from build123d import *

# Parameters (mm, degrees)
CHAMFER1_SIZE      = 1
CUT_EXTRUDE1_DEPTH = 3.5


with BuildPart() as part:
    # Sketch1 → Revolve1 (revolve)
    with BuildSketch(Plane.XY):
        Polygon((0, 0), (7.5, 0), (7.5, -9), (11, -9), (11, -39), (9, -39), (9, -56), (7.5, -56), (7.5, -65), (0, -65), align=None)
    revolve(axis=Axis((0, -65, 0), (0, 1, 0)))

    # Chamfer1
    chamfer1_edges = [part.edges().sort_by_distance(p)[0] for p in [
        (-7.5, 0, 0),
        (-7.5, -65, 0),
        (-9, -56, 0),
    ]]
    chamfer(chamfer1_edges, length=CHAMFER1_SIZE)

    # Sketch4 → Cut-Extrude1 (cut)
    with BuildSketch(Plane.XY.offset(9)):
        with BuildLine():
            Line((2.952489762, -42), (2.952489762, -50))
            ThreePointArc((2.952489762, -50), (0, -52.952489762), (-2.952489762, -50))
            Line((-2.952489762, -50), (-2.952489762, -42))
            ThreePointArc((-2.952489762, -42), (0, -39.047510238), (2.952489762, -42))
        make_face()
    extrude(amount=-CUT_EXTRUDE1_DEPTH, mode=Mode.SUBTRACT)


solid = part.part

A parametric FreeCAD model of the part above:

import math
import FreeCAD as App
import Part
import Sketcher

V = App.Vector
Q = App.Units.Quantity


def edges_at(feature, points):
    """Names of the edges that pass closest to the given points."""
    edges = feature.Shape.Edges
    near = lambda p: min(range(len(edges)), key=lambda i: edges[i].distToShape(Part.Vertex(*p))[0])
    return sorted({f"Edge{near(p) + 1}" for p in points})

doc = App.newDocument("Part")
params = doc.addObject("Spreadsheet::Sheet", "Params")
for row, (alias, value) in enumerate([
    ("sketch1_width", "2 mm"),
    ("sketch1_height", "65 mm"),
    ("sketch1_height2", "9 mm"),
    ("sketch1_height3", "17 mm"),
    ("sketch1_width2", "7.5 mm"),
    ("revolution_angle", "360 deg"),
    ("chamfer_size", "1 mm"),
    ("sketch2_height", "8 mm"),
    ("pocket1_length", "3.5 mm"),
], start=1):
    params.set(f"A{row}", alias)
    params.set(f"B{row}", "=" + value)
    params.setAlias(f"B{row}", alias)

body = doc.addObject("PartDesign::Body", "Body")

sketch1 = doc.addObject("Sketcher::SketchObject", "Sketch")
body.addObject(sketch1)
sketch1.AttachmentSupport = (doc.XY_Plane, [""])
sketch1.MapMode = "FlatFace"
sketch1.addGeometry([
    Part.LineSegment(V(7.5, 0, 0), V(0, 0, 0)),
    Part.LineSegment(V(0, 0, 0), V(0, -65, 0)),
    Part.LineSegment(V(0, -65, 0), V(7.5, -65, 0)),
    Part.LineSegment(V(7.5, -65, 0), V(7.5, -56, 0)),
    Part.LineSegment(V(7.5, -56, 0), V(9, -56, 0)),
    Part.LineSegment(V(9, -56, 0), V(9, -39, 0)),
    Part.LineSegment(V(9, -39, 0), V(11, -39, 0)),
    Part.LineSegment(V(11, -39, 0), V(11, -9, 0)),
    Part.LineSegment(V(11, -9, 0), V(7.5, -9, 0)),
    Part.LineSegment(V(7.5, -9, 0), V(7.5, 0, 0)),
], False)
sketch1.addConstraint([
    Sketcher.Constraint("Coincident", 0, 2, 1, 1),
    Sketcher.Constraint("Coincident", 1, 2, 2, 1),
    Sketcher.Constraint("Coincident", 2, 2, 3, 1),
    Sketcher.Constraint("Coincident", 3, 2, 4, 1),
    Sketcher.Constraint("Coincident", 4, 2, 5, 1),
    Sketcher.Constraint("Coincident", 5, 2, 6, 1),
    Sketcher.Constraint("Coincident", 6, 2, 7, 1),
    Sketcher.Constraint("Coincident", 7, 2, 8, 1),
    Sketcher.Constraint("Coincident", 8, 2, 9, 1),
    Sketcher.Constraint("Coincident", 9, 2, 0, 1),
    Sketcher.Constraint("Horizontal", 0),
    Sketcher.Constraint("Vertical", 1),
    Sketcher.Constraint("Horizontal", 2),
    Sketcher.Constraint("Vertical", 3),
    Sketcher.Constraint("Horizontal", 4),
    Sketcher.Constraint("Vertical", 5),
    Sketcher.Constraint("Horizontal", 6),
    Sketcher.Constraint("Vertical", 7),
    Sketcher.Constraint("Horizontal", 8),
    Sketcher.Constraint("Vertical", 9),
    Sketcher.Constraint("Coincident", 0, 2, -1, 1),
    Sketcher.Constraint("Vertical", 3, 2, 8, 2),
    Sketcher.Constraint("Equal", 3, 9),
    Sketcher.Constraint("DistanceX", 6, 1, 6, 2, Q("2 mm")),
    Sketcher.Constraint("DistanceY", 1, 2, 1, 1, Q("65 mm")),
    Sketcher.Constraint("DistanceY", 3, 1, 3, 2, Q("9 mm")),
    Sketcher.Constraint("DistanceY", 5, 1, 5, 2, Q("17 mm")),
    Sketcher.Constraint("DistanceX", 0, 2, 0, 1, Q("7.5 mm")),
    Sketcher.Constraint("DistanceX", 4, 1, 4, 2, Q("1.5 mm")),
])
sketch1.setExpression("Constraints[23]", "Params.sketch1_width")
sketch1.setExpression("Constraints[24]", "Params.sketch1_height")
sketch1.setExpression("Constraints[25]", "Params.sketch1_height2")
sketch1.setExpression("Constraints[26]", "Params.sketch1_height3")
sketch1.setExpression("Constraints[27]", "Params.sketch1_width2")
revolution = doc.addObject("PartDesign::Revolution", "Revolution")
body.addObject(revolution)
revolution.Profile = sketch1
revolution.ReferenceAxis = (sketch1, ["V_Axis"])
revolution.setExpression("Angle", "Params.revolution_angle")
doc.recompute()

chamfer = doc.addObject("PartDesign::Chamfer", "Chamfer")
body.addObject(chamfer)
chamfer.Base = (revolution, edges_at(revolution, [(-7.5, 0, 0), (-7.5, -65, 0), (-9, -56, 0)]))
chamfer.setExpression("Size", "Params.chamfer_size")

sketch2 = doc.addObject("Sketcher::SketchObject", "Sketch001")
body.addObject(sketch2)
sketch2.AttachmentSupport = (doc.XY_Plane, [""])
sketch2.MapMode = "FlatFace"
sketch2.AttachmentOffset = App.Placement(V(0, 0, 9), App.Rotation())
sketch2.addGeometry([
    Part.LineSegment(V(3, -50, 0), V(3, -42, 0)),
    Part.ArcOfCircle(Part.Circle(V(0, -42, 0), V(0, 0, 1), 3), math.radians(0), math.radians(180)),
    Part.LineSegment(V(-3, -42, 0), V(-3, -50, 0)),
    Part.ArcOfCircle(Part.Circle(V(0, -50, 0), V(0, 0, 1), 3), math.radians(180), math.radians(360)),
], False)
sketch2.addConstraint([
    Sketcher.Constraint("Tangent", 0, 2, 1, 1),
    Sketcher.Constraint("Tangent", 1, 2, 2, 1),
    Sketcher.Constraint("Tangent", 2, 2, 3, 1),
    Sketcher.Constraint("Tangent", 3, 2, 0, 1),
    Sketcher.Constraint("Vertical", 0),
    Sketcher.Constraint("Vertical", 2),
    Sketcher.Constraint("PointOnObject", 1, 3, -2),
    Sketcher.Constraint("DistanceY", 0, 1, 0, 2, Q("8 mm")),
    Sketcher.Constraint("DistanceY", 1, 3, -1, 1, Q("42 mm")),
    Sketcher.Constraint("Radius", 1, Q("2.95249 mm")),
])
sketch2.setExpression("Constraints[7]", "Params.sketch2_height")
pocket1 = doc.addObject("PartDesign::Pocket", "Pocket")
body.addObject(pocket1)
pocket1.Profile = sketch2
pocket1.setExpression("Length", "Params.pocket1_length")

doc.recompute()
